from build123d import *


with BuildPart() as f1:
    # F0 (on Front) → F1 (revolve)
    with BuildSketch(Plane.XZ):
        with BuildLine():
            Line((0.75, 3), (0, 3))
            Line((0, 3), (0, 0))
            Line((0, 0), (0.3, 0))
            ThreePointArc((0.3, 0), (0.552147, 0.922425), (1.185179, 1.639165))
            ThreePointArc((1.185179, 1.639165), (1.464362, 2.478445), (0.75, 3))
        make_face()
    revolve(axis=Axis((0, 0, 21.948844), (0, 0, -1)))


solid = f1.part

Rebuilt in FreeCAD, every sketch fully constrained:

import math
import FreeCAD as App
import Part
import Sketcher
from FreeCAD import Vector

doc = App.newDocument("Part")
body = doc.addObject("PartDesign::Body", "Body")

# Sketch on XZ plane
sketch1 = body.newObject("Sketcher::SketchObject", "Sketch")
sketch1.AttachmentSupport = (doc.getObject("XZ_Plane"), [""])
sketch1.MapMode = "FlatFace"
sketch1.addGeometry([
    Part.LineSegment(Vector(0.75, 3, 0), Vector(0, 3, 0)),  # 0
    Part.LineSegment(Vector(0, 3, 0), Vector(0, 0, 0)),  # 1
    Part.LineSegment(Vector(0, 0, 0), Vector(0.3, 0, 0)),  # 2
    Part.ArcOfCircle(Part.Circle(Vector(2.410933, -0.081353, 0), Vector(0, 0, 1), 2.1125), math.radians(125.467323), math.radians(177.792966)),  # 3
    Part.ArcOfCircle(Part.Circle(Vector(0.75, 2.25, 0), Vector(0, 0, 1), 0.75), math.radians(-54.532681), math.radians(90.000009)),  # 4
], False)
sketch1.addConstraint([
    Sketcher.Constraint("Coincident", 0, 2, 1, 1),
    Sketcher.Constraint("Coincident", 1, 2, 2, 1),
    Sketcher.Constraint("Coincident", 2, 2, 3, 2),
    Sketcher.Constraint("Tangent", 3, 1, 4, 1),
    Sketcher.Constraint("Tangent", 4, 2, 0, 1),
    Sketcher.Constraint("Horizontal", 0),
    Sketcher.Constraint("Vertical", 1),
    Sketcher.Constraint("Horizontal", 2),
    Sketcher.Constraint("Coincident", 1, 2, -1, 1),
    Sketcher.Constraint("DistanceY", 1, 2, 1, 1, 3.0),
    Sketcher.Constraint("Radius", 4, 0.75),
    Sketcher.Constraint("DistanceX", 2, 1, 2, 2, 0.3),
    Sketcher.Constraint("DistanceX", 0, 2, 0, 1, 0.75),
    Sketcher.Constraint("Radius", 3, 2.1125),
])
revolution = body.newObject("PartDesign::Revolution", "Revolution")
revolution.Profile = sketch1
revolution.ReferenceAxis = (sketch1, ["V_Axis"])
revolution.Angle = 360

doc.recompute()
